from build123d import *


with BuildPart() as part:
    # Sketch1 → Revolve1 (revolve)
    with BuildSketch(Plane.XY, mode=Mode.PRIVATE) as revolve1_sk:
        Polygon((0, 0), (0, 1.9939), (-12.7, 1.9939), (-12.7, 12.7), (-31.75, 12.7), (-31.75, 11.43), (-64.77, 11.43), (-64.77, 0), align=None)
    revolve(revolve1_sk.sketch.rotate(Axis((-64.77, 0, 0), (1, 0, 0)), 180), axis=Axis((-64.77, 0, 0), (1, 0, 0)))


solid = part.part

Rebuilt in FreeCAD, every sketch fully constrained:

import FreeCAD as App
import Part
import Sketcher

V = App.Vector
Q = App.Units.Quantity


def add_polygon(sketch, points):
    """Adds a closed chain of lines whose ends are joined by coincident constraints."""
    first, n = sketch.GeometryCount, len(points)
    for a, b in zip(points, points[1:] + points[:1]):
        sketch.addGeometry(Part.LineSegment(App.Vector(*a, 0), App.Vector(*b, 0)), False)
    for i in range(n):
        sketch.addConstraint(Sketcher.Constraint("Coincident", first + i, 2, first + (i + 1) % n, 1))

doc = App.newDocument("Part")
body = doc.addObject("PartDesign::Body", "Body")

sketch1 = doc.addObject("Sketcher::SketchObject", "Sketch")
body.addObject(sketch1)
sketch1.AttachmentSupport = (doc.XY_Plane, [""])
sketch1.MapMode = "FlatFace"
add_polygon(sketch1, [(0, 0), (0, 2), (-12.7, 2), (-12.7, 12.7), (-31.8, 12.7), (-31.8, 11.4), (-64.8, 11.4), (-64.8, 0)])
sketch1.addConstraint(Sketcher.Constraint("Vertical", 0))
sketch1.addConstraint(Sketcher.Constraint("Horizontal", 1))
sketch1.addConstraint(Sketcher.Constraint("Vertical", 2))
sketch1.addConstraint(Sketcher.Constraint("Horizontal", 3))
sketch1.addConstraint(Sketcher.Constraint("Vertical", 4))
sketch1.addConstraint(Sketcher.Constraint("Horizontal", 5))
sketch1.addConstraint(Sketcher.Constraint("Vertical", 6))
sketch1.addConstraint(Sketcher.Constraint("Horizontal", 7))
sketch1.addConstraint(Sketcher.Constraint("Coincident", 7, 2, -1, 1))
sketch1.addConstraint(Sketcher.Constraint("DistanceX", 1, 2, 1, 1, Q("0.5 in")))
sketch1.addConstraint(Sketcher.Constraint("DistanceX", 5, 2, 5, 1, Q("1.3 in")))
sketch1.addConstraint(Sketcher.Constraint("DistanceX", 3, 2, 3, 1, Q("0.75 in")))
sketch1.addConstraint(Sketcher.Constraint("DistanceY", 4, 2, 4, 1, Q("0.05 in")))
sketch1.addConstraint(Sketcher.Constraint("DistanceY", 6, 2, 6, 1, Q("0.45 in")))
sketch1.addConstraint(Sketcher.Constraint("DistanceY", 0, 1, 0, 2, Q("0.0785 in")))
revolution = doc.addObject("PartDesign::Revolution", "Revolution")
body.addObject(revolution)
revolution.Profile = sketch1
revolution.ReferenceAxis = (sketch1, ["H_Axis"])
revolution.Angle = 360

doc.recompute()
